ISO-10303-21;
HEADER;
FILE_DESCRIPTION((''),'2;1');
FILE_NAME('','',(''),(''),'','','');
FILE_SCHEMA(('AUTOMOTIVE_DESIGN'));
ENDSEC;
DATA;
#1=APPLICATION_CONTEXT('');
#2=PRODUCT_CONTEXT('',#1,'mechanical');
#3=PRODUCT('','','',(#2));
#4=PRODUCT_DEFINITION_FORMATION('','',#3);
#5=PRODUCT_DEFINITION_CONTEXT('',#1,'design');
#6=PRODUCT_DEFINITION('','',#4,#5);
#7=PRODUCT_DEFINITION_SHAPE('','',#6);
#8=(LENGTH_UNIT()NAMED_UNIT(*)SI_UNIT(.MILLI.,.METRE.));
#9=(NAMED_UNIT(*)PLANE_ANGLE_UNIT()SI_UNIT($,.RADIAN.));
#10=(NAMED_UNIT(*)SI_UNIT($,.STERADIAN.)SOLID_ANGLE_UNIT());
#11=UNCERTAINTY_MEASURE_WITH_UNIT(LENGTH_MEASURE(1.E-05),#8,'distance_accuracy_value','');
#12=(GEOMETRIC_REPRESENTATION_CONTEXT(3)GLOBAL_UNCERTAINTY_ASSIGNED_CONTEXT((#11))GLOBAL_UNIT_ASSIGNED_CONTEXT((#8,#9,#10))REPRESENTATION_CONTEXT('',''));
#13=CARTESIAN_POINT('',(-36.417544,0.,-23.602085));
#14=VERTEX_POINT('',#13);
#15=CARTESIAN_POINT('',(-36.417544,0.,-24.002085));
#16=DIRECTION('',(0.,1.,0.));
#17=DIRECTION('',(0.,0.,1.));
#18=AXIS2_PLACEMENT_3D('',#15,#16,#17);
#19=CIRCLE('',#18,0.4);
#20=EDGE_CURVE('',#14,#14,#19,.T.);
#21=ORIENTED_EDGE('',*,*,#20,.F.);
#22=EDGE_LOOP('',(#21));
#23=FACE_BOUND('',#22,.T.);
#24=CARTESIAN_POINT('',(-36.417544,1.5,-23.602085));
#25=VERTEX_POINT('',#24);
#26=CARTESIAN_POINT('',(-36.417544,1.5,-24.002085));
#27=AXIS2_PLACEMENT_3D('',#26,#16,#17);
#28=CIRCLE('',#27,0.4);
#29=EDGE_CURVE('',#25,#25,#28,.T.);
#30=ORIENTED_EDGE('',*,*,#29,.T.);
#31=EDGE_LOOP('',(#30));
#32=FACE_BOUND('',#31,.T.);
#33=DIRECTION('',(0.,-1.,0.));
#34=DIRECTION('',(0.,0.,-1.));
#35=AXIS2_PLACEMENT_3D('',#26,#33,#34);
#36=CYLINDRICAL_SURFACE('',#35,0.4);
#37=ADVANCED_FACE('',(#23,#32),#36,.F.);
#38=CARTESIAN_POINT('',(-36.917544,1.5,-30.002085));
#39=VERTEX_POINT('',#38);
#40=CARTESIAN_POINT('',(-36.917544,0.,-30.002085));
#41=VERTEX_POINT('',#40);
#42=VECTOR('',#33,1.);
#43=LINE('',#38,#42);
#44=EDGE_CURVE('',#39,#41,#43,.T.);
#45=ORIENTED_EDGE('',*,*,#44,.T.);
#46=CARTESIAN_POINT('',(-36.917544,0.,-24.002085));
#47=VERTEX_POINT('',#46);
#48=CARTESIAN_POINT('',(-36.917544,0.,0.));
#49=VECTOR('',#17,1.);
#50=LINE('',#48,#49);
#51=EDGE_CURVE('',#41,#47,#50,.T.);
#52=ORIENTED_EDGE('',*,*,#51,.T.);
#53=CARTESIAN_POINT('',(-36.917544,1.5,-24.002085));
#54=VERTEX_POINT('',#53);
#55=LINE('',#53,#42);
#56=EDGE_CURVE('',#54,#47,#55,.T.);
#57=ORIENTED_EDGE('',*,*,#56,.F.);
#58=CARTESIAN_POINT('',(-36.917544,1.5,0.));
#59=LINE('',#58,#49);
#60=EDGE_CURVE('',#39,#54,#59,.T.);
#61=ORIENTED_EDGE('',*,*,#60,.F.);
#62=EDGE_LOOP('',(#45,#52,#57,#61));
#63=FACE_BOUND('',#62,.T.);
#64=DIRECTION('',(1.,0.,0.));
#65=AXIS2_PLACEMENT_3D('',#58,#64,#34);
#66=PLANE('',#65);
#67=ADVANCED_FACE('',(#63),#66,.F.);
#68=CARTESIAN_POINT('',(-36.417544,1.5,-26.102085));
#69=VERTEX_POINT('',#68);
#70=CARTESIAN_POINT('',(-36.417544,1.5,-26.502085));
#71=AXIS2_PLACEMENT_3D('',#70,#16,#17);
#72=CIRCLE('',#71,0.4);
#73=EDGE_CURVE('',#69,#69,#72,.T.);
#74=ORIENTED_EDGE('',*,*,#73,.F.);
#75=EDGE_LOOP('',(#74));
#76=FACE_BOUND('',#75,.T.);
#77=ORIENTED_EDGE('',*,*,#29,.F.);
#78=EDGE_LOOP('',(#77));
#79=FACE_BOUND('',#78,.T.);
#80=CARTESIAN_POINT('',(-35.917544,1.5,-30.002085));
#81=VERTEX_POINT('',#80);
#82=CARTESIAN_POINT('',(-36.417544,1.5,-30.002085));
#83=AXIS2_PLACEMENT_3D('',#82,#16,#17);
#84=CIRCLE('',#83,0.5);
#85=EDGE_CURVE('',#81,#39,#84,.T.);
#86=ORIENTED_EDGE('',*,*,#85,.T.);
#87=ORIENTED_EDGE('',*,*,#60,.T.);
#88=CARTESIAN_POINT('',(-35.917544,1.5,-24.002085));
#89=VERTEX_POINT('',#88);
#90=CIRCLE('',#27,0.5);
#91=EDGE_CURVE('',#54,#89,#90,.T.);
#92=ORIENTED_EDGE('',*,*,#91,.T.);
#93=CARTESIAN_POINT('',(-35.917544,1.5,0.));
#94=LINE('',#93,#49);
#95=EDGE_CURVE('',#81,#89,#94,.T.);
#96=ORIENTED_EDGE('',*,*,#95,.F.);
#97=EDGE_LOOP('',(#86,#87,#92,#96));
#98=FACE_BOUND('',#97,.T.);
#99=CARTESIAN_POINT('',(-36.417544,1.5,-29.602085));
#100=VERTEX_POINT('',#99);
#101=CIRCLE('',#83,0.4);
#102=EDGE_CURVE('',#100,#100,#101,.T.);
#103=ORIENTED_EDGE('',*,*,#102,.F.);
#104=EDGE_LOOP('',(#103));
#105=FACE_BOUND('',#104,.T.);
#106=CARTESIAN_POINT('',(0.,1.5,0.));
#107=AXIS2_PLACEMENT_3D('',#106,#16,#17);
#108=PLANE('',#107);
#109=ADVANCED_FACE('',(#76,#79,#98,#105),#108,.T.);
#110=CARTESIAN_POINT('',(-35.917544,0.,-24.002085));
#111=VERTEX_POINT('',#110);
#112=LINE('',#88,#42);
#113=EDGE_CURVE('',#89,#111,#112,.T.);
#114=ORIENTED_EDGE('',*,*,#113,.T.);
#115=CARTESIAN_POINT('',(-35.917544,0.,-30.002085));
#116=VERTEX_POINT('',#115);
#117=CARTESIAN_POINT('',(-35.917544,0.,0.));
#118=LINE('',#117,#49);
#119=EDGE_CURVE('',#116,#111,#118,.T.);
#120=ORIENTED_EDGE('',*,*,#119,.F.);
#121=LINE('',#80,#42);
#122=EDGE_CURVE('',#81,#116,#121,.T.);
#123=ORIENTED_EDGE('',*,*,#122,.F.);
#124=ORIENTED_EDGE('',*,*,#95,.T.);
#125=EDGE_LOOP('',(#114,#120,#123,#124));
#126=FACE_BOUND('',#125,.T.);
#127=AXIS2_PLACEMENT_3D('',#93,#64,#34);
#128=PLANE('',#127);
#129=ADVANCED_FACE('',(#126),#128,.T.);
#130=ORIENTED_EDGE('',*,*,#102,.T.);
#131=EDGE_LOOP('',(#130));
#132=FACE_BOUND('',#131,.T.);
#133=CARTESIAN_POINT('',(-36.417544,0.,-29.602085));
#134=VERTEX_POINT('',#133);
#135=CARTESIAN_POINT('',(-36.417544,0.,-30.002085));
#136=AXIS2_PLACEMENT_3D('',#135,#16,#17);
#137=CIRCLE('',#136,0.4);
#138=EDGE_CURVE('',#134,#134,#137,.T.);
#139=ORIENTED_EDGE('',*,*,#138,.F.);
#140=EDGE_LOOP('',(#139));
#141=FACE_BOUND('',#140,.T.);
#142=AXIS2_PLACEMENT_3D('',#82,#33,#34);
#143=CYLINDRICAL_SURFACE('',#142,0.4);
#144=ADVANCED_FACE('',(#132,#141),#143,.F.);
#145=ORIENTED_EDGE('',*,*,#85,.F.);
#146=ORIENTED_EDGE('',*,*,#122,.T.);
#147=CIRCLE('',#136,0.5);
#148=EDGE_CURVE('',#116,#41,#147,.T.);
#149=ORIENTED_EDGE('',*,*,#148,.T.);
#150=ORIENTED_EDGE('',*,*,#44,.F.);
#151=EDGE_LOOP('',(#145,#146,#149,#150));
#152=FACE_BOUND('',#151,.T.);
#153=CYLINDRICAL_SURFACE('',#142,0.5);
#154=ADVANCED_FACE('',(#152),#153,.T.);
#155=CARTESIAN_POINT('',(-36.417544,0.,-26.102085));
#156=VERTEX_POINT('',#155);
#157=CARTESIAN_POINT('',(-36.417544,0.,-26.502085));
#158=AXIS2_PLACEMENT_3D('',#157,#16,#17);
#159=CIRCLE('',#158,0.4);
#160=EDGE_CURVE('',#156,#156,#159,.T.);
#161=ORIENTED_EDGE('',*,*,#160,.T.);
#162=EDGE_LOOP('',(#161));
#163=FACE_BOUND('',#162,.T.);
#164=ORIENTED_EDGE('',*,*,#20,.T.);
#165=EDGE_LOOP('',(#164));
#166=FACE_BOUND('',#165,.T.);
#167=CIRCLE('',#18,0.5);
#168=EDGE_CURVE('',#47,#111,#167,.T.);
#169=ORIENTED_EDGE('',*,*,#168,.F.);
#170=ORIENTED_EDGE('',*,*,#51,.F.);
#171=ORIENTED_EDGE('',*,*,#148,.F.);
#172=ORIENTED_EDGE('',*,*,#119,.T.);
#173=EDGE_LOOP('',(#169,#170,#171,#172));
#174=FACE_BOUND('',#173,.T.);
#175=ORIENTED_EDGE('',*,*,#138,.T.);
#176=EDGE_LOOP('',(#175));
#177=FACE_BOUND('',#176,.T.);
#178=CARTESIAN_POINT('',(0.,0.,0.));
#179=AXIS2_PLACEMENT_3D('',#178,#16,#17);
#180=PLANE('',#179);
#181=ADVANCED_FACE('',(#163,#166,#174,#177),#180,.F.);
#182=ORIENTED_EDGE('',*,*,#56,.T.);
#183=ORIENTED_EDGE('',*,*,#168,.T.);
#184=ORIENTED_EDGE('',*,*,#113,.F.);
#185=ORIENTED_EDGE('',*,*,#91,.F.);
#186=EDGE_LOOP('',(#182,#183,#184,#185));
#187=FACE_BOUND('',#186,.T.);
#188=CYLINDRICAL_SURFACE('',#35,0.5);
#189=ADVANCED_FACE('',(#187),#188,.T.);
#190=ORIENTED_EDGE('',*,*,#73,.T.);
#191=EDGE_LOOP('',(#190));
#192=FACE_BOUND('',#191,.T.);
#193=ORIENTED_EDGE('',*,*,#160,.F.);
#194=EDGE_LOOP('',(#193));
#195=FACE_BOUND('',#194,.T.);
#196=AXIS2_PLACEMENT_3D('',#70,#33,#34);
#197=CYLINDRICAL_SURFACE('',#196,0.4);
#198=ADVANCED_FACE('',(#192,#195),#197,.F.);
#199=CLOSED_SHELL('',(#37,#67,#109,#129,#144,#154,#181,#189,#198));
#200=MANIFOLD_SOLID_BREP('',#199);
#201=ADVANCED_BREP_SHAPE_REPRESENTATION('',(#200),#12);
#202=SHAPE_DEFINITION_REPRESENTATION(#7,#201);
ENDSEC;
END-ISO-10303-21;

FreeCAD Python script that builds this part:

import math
import FreeCAD as App
import Part
import Sketcher
Q = App.Units.Quantity

doc = App.newDocument("Part")
body = doc.addObject("PartDesign::Body", "Body")

# Sketch on XZ plane
sketch1 = body.newObject("Sketcher::SketchObject", "Sketch")
sketch1.AttachmentSupport = (doc.getObject("XZ_Plane"), [""])
sketch1.MapMode = "FlatFace"
sketch1.addGeometry([
    Part.LineSegment(App.Vector(-35.92, -24, 0), App.Vector(-35.92, -30, 0)),  # 0
    Part.ArcOfCircle(Part.Circle(App.Vector(-36.42, -30, 0), App.Vector(0, 0, 1), 0.5), math.radians(180), math.radians(360)),  # 1
    Part.LineSegment(App.Vector(-36.92, -30, 0), App.Vector(-36.92, -24, 0)),  # 2
    Part.ArcOfCircle(Part.Circle(App.Vector(-36.42, -24, 0), App.Vector(0, 0, 1), 0.5), math.radians(0), math.radians(180)),  # 3
    Part.Circle(App.Vector(-36.42, -24, 0), App.Vector(0, 0, 1), 0.4),  # 4
    Part.Circle(App.Vector(-36.42, -26.5, 0), App.Vector(0, 0, 1), 0.4),  # 5
    Part.Circle(App.Vector(-36.42, -30, 0), App.Vector(0, 0, 1), 0.4),  # 6
], False)
sketch1.addConstraint([
    Sketcher.Constraint("Tangent", 0, 2, 1, 2),
    Sketcher.Constraint("Tangent", 1, 1, 2, 1),
    Sketcher.Constraint("Tangent", 2, 2, 3, 2),
    Sketcher.Constraint("Tangent", 3, 1, 0, 1),
    Sketcher.Constraint("Vertical", 0),
    Sketcher.Constraint("Vertical", 2),
    Sketcher.Constraint("Coincident", 4, 3, 3, 3),
    Sketcher.Constraint("Coincident", 6, 3, 1, 3),
    Sketcher.Constraint("Equal", 4, 5),
    Sketcher.Constraint("Equal", 5, 6),
    Sketcher.Constraint("Vertical", 4, 3, 5, 3),
    Sketcher.Constraint("Diameter", 4, Q("0.8 mm")),
    Sketcher.Constraint("Radius", 1, Q("0.5 mm")),
    Sketcher.Constraint("DistanceY", 0, 2, 0, 1, Q("6 mm")),
    Sketcher.Constraint("DistanceY", 5, 3, 3, 3, Q("2.5 mm")),
    Sketcher.Constraint("DistanceX", 1, 3, -1, 1, Q("36.417544 mm")),
    Sketcher.Constraint("DistanceY", 1, 3, -1, 1, Q("30.002085 mm")),
])
pad1 = body.newObject("PartDesign::Pad", "Pad")
pad1.Profile = sketch1
pad1.Length = 1.5
pad1.Reversed = True

doc.recompute()
